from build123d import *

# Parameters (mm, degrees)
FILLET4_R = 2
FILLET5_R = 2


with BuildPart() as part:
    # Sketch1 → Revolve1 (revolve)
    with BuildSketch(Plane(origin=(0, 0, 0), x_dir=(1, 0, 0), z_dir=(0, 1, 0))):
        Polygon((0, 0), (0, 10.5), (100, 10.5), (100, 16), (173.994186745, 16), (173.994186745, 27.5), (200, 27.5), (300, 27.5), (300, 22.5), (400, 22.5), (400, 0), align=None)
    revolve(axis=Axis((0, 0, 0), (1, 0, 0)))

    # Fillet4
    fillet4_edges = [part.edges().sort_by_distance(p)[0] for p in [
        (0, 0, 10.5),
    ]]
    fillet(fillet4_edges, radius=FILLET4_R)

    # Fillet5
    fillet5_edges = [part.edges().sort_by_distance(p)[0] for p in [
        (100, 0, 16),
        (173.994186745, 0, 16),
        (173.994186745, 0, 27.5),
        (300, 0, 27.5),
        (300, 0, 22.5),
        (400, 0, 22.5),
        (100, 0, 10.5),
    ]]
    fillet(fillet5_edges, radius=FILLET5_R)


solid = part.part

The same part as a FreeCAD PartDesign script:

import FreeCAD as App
import Part
import Sketcher
from FreeCAD import Vector


def edges_at(feature, points):
    """Names of the edges that pass closest to the given points."""
    edges = feature.Shape.Edges
    near = lambda p: min(range(len(edges)), key=lambda i: edges[i].distToShape(Part.Vertex(*p))[0])
    return sorted({f"Edge{near(p) + 1}" for p in points})

doc = App.newDocument("Part")
body = doc.addObject("PartDesign::Body", "Body")

# Sketch on XZ plane
sketch1 = doc.addObject("Sketcher::SketchObject", "Sketch")
body.addObject(sketch1)
sketch1.AttachmentSupport = (doc.XZ_Plane, [""])
sketch1.MapMode = "FlatFace"
sketch1.addGeometry([
    Part.LineSegment(Vector(0, -10, 0), Vector(0, 0, 0)),  # 0
    Part.LineSegment(Vector(0, 0, 0), Vector(400, 0, 0)),  # 1
    Part.LineSegment(Vector(400, 0, 0), Vector(400, -22, 0)),  # 2
    Part.LineSegment(Vector(400, -22, 0), Vector(300, -22, 0)),  # 3
    Part.LineSegment(Vector(300, -22, 0), Vector(300, -28, 0)),  # 4
    Part.LineSegment(Vector(300, -28, 0), Vector(174, -28, 0)),  # 5
    Part.LineSegment(Vector(174, -28, 0), Vector(174, -16, 0)),  # 6
    Part.LineSegment(Vector(174, -16, 0), Vector(100, -16, 0)),  # 7
    Part.LineSegment(Vector(100, -16, 0), Vector(100, -10, 0)),  # 8
    Part.LineSegment(Vector(100, -10, 0), Vector(0, -10, 0)),  # 9
], False)
sketch1.addConstraint([
    Sketcher.Constraint("Coincident", 0, 2, 1, 1),
    Sketcher.Constraint("Coincident", 1, 2, 2, 1),
    Sketcher.Constraint("Coincident", 2, 2, 3, 1),
    Sketcher.Constraint("Coincident", 3, 2, 4, 1),
    Sketcher.Constraint("Coincident", 4, 2, 5, 1),
    Sketcher.Constraint("Coincident", 5, 2, 6, 1),
    Sketcher.Constraint("Coincident", 6, 2, 7, 1),
    Sketcher.Constraint("Coincident", 7, 2, 8, 1),
    Sketcher.Constraint("Coincident", 8, 2, 9, 1),
    Sketcher.Constraint("Coincident", 9, 2, 0, 1),
    Sketcher.Constraint("Vertical", 0),
    Sketcher.Constraint("Horizontal", 1),
    Sketcher.Constraint("Vertical", 2),
    Sketcher.Constraint("Horizontal", 3),
    Sketcher.Constraint("Vertical", 4),
    Sketcher.Constraint("Horizontal", 5),
    Sketcher.Constraint("Vertical", 6),
    Sketcher.Constraint("Horizontal", 7),
    Sketcher.Constraint("Vertical", 8),
    Sketcher.Constraint("Horizontal", 9),
    Sketcher.Constraint("Coincident", 0, 2, -1, 1),
    Sketcher.Constraint("Equal", 3, 9),
    Sketcher.Constraint("DistanceX", 1, 1, 1, 2, 400.0),
    Sketcher.Constraint("DistanceX", 3, 2, 3, 1, 100.0),
    Sketcher.Constraint("DistanceY", 4, 2, 4, 1, 5.0),
    Sketcher.Constraint("DistanceY", 0, 1, 0, 2, 10.5),
    Sketcher.Constraint("DistanceY", 2, 2, 2, 1, 22.5),
    Sketcher.Constraint("DistanceY", 6, 1, 6, 2, 11.5),
    Sketcher.Constraint("DistanceX", 5, 2, 5, 1, 126.005813),
])
revolution = doc.addObject("PartDesign::Revolution", "Revolution")
body.addObject(revolution)
revolution.Profile = sketch1
revolution.ReferenceAxis = (sketch1, ["H_Axis"])
revolution.Angle = 360
doc.recompute()

fillet = doc.addObject("PartDesign::Fillet", "Fillet")
body.addObject(fillet)
fillet.Base = (revolution, edges_at(revolution, [(0, 0, 10.5)]))
fillet.Radius = 2
doc.recompute()

fillet2 = doc.addObject("PartDesign::Fillet", "Fillet001")
body.addObject(fillet2)
fillet2.Base = (fillet, edges_at(fillet, [
    (100, 0, 16),
    (173.994, 0, 16),
    (173.994, 0, 27.5),
    (300, 0, 27.5),
    (300, 0, 22.5),
    (400, 0, 22.5),
    (100, 0, 10.5),
]))
fillet2.Radius = 2

doc.recompute()
